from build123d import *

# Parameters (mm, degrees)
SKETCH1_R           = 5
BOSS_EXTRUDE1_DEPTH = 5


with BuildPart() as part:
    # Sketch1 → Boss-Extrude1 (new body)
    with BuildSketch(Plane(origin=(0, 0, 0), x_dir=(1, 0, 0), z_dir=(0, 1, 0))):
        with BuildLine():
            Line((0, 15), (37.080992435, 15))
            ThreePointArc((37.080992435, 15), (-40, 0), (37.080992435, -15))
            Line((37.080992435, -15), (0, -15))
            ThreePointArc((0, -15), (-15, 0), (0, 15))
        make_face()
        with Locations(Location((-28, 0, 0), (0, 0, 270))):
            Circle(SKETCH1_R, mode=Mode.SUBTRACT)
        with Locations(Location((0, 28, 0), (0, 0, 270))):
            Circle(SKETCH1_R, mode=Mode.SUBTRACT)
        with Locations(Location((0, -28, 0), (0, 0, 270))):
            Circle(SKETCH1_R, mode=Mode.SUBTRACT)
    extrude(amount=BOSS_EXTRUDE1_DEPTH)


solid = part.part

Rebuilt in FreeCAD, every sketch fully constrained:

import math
import FreeCAD as App
import Part
import Sketcher

V = App.Vector

doc = App.newDocument("Part")
body = doc.addObject("PartDesign::Body", "Body")

# Sketch on XZ plane
sketch1 = body.newObject("Sketcher::SketchObject", "Sketch")
sketch1.AttachmentSupport = (doc.getObject("XZ_Plane"), [""])
sketch1.MapMode = "FlatFace"
sketch1.addGeometry([
    Part.LineSegment(V(0, -15, 0), V(37.080992, -15, 0)),  # 0
    Part.ArcOfCircle(Part.Circle(V(0, 0, 0), V(0, 0, 1), 40), math.radians(22.024313), math.radians(337.975687)),  # 1
    Part.LineSegment(V(37.080992, 15, 0), V(0, 15, 0)),  # 2
    Part.ArcOfCircle(Part.Circle(V(0, 0, 0), V(0, 0, 1), 15), math.radians(90), math.radians(270)),  # 3
    Part.Circle(V(0, 28, 0), V(0, 0, 1), 5),  # 4
    Part.Circle(V(-28, 0, 0), V(0, 0, 1), 5),  # 5
    Part.Circle(V(0, -28, 0), V(0, 0, 1), 5),  # 6
], False)
sketch1.addConstraint([
    Sketcher.Constraint("Coincident", 0, 2, 1, 2),
    Sketcher.Constraint("Coincident", 1, 1, 2, 1),
    Sketcher.Constraint("Tangent", 2, 2, 3, 1),
    Sketcher.Constraint("Tangent", 3, 2, 0, 1),
    Sketcher.Constraint("Horizontal", 0),
    Sketcher.Constraint("Horizontal", 2),
    Sketcher.Constraint("Coincident", 1, 3, -1, 1),
    Sketcher.Constraint("Coincident", 3, 3, -1, 1),
    Sketcher.Constraint("Equal", 4, 5),
    Sketcher.Constraint("Equal", 5, 6),
    Sketcher.Constraint("Symmetric", 4, 3, 6, 3, -1, 1),
    Sketcher.Constraint("PointOnObject", 4, 3, -2),
    Sketcher.Constraint("PointOnObject", 5, 3, -1),
    Sketcher.Constraint("Diameter", 4, 10.0),
    Sketcher.Constraint("Radius", 1, 40.0),
    Sketcher.Constraint("Radius", 3, 15.0),
    Sketcher.Constraint("DistanceY", -1, 1, 4, 3, 28.0),
    Sketcher.Constraint("DistanceX", 5, 3, -1, 1, 28.0),
])
pad1 = body.newObject("PartDesign::Pad", "Pad")
pad1.Profile = sketch1
pad1.Length = 5
pad1.Reversed = True

doc.recompute()
